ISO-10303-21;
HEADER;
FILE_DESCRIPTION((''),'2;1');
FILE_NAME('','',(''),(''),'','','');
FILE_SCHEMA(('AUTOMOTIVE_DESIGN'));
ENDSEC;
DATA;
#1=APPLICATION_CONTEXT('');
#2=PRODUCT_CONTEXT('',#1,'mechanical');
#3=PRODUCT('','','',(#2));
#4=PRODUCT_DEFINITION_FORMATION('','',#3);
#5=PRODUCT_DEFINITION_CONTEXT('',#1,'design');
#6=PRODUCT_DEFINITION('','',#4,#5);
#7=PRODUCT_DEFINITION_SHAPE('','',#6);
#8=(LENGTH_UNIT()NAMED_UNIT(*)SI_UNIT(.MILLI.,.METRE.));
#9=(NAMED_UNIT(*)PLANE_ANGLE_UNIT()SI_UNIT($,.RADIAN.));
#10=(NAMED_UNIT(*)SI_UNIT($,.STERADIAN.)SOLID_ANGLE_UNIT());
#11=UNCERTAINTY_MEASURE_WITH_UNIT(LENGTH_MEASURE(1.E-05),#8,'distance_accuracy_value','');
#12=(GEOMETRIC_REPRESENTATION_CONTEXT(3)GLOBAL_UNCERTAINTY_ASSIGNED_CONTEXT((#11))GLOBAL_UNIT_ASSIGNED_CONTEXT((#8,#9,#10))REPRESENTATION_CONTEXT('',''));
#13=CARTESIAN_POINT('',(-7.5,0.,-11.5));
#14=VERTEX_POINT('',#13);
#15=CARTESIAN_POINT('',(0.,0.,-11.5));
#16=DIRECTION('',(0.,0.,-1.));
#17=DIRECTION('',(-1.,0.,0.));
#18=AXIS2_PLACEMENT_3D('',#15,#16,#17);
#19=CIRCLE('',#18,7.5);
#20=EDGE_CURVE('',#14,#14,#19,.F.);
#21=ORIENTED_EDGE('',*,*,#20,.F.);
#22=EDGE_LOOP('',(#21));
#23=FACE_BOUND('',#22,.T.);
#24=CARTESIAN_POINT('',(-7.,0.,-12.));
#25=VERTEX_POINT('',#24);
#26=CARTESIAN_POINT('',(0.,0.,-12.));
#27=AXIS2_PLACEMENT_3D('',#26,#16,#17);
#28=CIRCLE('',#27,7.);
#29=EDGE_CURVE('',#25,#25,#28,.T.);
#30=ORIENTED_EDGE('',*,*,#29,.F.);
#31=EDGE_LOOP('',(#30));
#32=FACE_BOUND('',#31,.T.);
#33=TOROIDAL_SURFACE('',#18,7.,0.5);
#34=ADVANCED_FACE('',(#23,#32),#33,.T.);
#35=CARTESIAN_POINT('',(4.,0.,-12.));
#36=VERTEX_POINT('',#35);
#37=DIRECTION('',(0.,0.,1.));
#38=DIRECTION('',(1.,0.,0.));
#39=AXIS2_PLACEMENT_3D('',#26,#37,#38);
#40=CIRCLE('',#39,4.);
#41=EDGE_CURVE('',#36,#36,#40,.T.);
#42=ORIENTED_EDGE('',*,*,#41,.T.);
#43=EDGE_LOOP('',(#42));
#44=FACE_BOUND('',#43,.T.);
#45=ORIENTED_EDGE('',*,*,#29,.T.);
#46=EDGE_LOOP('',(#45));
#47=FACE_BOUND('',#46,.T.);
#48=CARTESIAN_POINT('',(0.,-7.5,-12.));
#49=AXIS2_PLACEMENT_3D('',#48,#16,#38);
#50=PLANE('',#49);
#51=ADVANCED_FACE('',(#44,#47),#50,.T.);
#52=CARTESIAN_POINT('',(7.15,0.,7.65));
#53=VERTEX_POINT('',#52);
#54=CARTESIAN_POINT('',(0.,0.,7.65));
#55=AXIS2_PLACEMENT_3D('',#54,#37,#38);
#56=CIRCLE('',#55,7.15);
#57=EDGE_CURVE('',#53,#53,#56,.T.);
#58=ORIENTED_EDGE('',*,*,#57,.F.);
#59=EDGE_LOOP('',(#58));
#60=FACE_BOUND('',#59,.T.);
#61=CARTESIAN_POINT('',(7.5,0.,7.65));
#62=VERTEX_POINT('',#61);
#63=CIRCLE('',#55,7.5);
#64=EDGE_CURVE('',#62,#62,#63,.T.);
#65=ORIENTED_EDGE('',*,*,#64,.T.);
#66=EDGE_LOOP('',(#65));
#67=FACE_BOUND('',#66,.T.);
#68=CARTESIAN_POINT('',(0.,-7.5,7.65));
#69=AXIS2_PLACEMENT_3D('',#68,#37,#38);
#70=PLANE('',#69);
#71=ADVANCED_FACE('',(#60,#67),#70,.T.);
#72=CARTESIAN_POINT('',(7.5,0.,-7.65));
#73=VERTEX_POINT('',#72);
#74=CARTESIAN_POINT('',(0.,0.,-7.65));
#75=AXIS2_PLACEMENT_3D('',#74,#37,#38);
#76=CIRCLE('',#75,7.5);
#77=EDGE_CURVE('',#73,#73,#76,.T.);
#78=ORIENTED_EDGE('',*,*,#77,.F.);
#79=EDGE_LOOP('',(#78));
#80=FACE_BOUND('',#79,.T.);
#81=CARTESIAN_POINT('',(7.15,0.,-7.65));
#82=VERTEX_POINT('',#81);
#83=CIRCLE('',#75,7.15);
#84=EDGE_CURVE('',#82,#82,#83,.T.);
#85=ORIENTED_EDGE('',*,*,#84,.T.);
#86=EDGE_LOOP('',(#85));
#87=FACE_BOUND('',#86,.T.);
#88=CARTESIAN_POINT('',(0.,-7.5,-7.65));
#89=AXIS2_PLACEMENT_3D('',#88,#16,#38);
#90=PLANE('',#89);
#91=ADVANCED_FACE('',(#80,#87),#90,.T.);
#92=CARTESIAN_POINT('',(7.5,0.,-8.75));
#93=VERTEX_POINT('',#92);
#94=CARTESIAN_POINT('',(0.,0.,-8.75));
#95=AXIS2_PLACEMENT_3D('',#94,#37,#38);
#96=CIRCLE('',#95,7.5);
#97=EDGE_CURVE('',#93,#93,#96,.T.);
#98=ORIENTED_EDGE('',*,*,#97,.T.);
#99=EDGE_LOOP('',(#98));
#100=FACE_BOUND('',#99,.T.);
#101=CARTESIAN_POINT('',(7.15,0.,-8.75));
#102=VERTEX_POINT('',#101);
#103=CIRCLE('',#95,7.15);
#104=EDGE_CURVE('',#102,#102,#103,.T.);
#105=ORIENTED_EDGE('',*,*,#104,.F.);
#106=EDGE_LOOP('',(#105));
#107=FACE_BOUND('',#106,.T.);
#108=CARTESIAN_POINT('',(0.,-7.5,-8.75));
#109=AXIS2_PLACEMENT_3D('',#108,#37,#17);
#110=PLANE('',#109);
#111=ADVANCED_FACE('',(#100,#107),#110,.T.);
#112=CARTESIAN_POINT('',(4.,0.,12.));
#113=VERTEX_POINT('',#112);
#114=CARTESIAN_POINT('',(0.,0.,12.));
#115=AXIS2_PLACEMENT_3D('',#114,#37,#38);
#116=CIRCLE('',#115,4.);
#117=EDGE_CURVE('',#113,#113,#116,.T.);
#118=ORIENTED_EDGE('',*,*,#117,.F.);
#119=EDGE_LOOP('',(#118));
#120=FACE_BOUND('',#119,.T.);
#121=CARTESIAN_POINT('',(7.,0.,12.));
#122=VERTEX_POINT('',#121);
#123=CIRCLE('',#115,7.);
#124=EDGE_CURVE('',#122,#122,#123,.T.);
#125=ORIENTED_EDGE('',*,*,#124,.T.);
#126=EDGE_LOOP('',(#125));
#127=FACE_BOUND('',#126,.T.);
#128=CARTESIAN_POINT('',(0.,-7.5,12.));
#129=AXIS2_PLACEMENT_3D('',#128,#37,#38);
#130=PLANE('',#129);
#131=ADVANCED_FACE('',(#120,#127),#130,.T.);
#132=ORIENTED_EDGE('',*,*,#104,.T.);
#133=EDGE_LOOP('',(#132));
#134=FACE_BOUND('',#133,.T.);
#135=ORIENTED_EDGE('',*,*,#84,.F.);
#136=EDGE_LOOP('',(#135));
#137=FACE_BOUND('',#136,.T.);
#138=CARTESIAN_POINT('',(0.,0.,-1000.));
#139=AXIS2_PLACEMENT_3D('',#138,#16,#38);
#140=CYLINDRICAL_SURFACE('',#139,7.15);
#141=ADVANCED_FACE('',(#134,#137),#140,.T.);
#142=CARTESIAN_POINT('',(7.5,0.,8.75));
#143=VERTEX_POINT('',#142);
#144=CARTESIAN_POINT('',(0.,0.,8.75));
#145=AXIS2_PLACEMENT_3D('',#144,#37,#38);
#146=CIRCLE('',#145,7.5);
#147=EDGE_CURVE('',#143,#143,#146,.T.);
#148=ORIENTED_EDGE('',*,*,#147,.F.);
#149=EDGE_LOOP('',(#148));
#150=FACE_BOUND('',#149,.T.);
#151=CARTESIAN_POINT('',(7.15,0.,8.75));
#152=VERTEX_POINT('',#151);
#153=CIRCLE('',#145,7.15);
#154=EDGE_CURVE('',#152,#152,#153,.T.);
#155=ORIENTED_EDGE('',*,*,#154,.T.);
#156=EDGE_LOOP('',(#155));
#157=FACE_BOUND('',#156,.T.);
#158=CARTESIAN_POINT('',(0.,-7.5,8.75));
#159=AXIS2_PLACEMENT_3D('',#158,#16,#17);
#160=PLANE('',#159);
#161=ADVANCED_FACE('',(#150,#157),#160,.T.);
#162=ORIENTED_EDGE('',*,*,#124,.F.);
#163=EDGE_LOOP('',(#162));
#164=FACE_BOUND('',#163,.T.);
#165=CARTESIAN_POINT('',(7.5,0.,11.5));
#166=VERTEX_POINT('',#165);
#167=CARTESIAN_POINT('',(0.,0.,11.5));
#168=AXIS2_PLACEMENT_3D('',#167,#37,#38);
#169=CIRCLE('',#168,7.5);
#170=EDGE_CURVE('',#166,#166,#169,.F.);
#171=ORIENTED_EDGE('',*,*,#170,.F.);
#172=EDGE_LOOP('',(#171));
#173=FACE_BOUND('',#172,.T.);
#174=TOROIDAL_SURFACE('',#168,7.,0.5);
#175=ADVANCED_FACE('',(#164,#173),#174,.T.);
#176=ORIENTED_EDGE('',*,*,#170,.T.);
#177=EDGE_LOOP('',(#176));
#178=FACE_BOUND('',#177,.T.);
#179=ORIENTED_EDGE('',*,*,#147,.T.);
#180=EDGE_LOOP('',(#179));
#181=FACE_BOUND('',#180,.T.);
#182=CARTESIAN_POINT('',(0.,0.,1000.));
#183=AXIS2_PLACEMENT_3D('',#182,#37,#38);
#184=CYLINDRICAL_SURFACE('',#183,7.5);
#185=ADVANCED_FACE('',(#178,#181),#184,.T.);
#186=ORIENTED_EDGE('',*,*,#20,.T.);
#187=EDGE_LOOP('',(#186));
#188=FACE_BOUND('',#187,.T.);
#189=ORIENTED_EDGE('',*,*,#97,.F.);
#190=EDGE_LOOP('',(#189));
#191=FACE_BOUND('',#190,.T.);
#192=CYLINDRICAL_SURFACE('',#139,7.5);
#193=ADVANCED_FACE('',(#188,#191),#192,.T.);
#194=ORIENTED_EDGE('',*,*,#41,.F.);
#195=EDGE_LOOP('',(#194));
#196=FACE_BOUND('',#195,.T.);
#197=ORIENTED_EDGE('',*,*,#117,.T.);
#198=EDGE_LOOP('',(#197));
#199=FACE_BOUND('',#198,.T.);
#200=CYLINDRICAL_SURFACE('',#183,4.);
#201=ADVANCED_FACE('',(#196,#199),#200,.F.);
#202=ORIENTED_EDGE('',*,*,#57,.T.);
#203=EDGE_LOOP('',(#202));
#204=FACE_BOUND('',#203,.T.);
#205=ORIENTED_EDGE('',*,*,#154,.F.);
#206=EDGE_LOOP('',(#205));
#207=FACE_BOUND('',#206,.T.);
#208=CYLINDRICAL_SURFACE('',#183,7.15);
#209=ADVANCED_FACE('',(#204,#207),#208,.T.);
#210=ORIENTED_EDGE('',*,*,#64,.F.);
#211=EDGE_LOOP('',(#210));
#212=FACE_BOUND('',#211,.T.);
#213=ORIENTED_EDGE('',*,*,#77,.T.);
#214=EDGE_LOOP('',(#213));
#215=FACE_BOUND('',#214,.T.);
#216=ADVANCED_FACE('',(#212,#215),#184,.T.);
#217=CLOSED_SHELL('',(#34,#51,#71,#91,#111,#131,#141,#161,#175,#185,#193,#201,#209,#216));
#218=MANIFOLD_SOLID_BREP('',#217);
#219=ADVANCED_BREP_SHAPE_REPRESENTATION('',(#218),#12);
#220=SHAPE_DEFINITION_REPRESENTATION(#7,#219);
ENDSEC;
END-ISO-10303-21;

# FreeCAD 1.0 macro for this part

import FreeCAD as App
import Part
import Sketcher


def edges_at(feature, points):
    """Names of the edges that pass closest to the given points."""
    edges = feature.Shape.Edges
    near = lambda p: min(range(len(edges)), key=lambda i: edges[i].distToShape(Part.Vertex(*p))[0])
    return sorted({f"Edge{near(p) + 1}" for p in points})


def add_polygon(sketch, points):
    """Adds a closed chain of lines whose ends are joined by coincident constraints."""
    first, n = sketch.GeometryCount, len(points)
    for a, b in zip(points, points[1:] + points[:1]):
        sketch.addGeometry(Part.LineSegment(App.Vector(*a, 0), App.Vector(*b, 0)), False)
    for i in range(n):
        sketch.addConstraint(Sketcher.Constraint("Coincident", first + i, 2, first + (i + 1) % n, 1))

doc = App.newDocument("Part")
params = doc.addObject("Spreadsheet::Sheet", "Params")
for row, (alias, value) in enumerate([
    ("sketch1_height", "12 mm"),
    ("sketch1_width", "3.5 mm"),
    ("sketch1_height2", "1.1 mm"),
    ("sketch1_width2", "0.35 mm"),
    ("sketch1_height3", "3.25 mm"),
    ("revolution_angle", "360 deg"),
    ("fillet_radius", "0.5 mm"),
    ("fillet2_radius", "0.5 mm"),
], start=1):
    params.set(f"A{row}", alias)
    params.set(f"B{row}", "=" + value)
    params.setAlias(f"B{row}", alias)

body = doc.addObject("PartDesign::Body", "Body")

sketch1 = body.newObject("Sketcher::SketchObject", "Sketch")
sketch1.AttachmentSupport = (doc.getObject("YZ_Plane"), [""])
sketch1.MapMode = "FlatFace"
add_polygon(sketch1, [(-7.5, 12), (-7.5, 8.75), (-7.15, 8.75), (-7.15, 7.65), (-7.5, 7.65), (-7.5, 0), (-4, 0), (-4, 12)])
sketch1.addConstraint([
    Sketcher.Constraint("Vertical", 0),
    Sketcher.Constraint("Horizontal", 1),
    Sketcher.Constraint("Vertical", 2),
    Sketcher.Constraint("Horizontal", 3),
    Sketcher.Constraint("Vertical", 4),
    Sketcher.Constraint("Horizontal", 5),
    Sketcher.Constraint("Vertical", 6),
    Sketcher.Constraint("Horizontal", 7),
    Sketcher.Constraint("PointOnObject", 4, 2, -1),
    Sketcher.Constraint("Vertical", 0, 2, 3, 2),
    Sketcher.Constraint("DistanceY", 6, 1, 6, 2, 12.0),
    Sketcher.Constraint("DistanceX", 5, 1, 5, 2, 3.5),
    Sketcher.Constraint("DistanceY", 2, 2, 2, 1, 1.1),
    Sketcher.Constraint("DistanceX", 5, 2, -1, 1, 4.0),
    Sketcher.Constraint("DistanceX", 1, 1, 1, 2, 0.35),
    Sketcher.Constraint("DistanceY", 0, 2, 0, 1, 3.25),
])
sketch1.setExpression("Constraints[18]", "Params.sketch1_height")
sketch1.setExpression("Constraints[19]", "Params.sketch1_width")
sketch1.setExpression("Constraints[20]", "Params.sketch1_height2")
sketch1.setExpression("Constraints[22]", "Params.sketch1_width2")
sketch1.setExpression("Constraints[23]", "Params.sketch1_height3")
revolution = body.newObject("PartDesign::Revolution", "Revolution")
revolution.Profile = sketch1
revolution.ReferenceAxis = (sketch1, ["V_Axis"])
revolution.setExpression("Angle", "Params.revolution_angle")
doc.recompute()

fillet = body.newObject("PartDesign::Fillet", "Fillet")
fillet.Base = (revolution, edges_at(revolution, [(0, 7.5, 12)]))
fillet.setExpression("Radius", "Params.fillet_radius")
doc.recompute()

mirrored = body.newObject("PartDesign::Mirrored", "Mirrored")
mirrored.Originals = [revolution]
mirrored.MirrorPlane = (doc.getObject("XY_Plane"), [""])
body.Tip = mirrored
doc.recompute()

fillet2 = body.newObject("PartDesign::Fillet", "Fillet001")
fillet2.Base = (mirrored, edges_at(mirrored, [(0, 7.5, -12)]))
fillet2.setExpression("Radius", "Params.fillet2_radius")

doc.recompute()
